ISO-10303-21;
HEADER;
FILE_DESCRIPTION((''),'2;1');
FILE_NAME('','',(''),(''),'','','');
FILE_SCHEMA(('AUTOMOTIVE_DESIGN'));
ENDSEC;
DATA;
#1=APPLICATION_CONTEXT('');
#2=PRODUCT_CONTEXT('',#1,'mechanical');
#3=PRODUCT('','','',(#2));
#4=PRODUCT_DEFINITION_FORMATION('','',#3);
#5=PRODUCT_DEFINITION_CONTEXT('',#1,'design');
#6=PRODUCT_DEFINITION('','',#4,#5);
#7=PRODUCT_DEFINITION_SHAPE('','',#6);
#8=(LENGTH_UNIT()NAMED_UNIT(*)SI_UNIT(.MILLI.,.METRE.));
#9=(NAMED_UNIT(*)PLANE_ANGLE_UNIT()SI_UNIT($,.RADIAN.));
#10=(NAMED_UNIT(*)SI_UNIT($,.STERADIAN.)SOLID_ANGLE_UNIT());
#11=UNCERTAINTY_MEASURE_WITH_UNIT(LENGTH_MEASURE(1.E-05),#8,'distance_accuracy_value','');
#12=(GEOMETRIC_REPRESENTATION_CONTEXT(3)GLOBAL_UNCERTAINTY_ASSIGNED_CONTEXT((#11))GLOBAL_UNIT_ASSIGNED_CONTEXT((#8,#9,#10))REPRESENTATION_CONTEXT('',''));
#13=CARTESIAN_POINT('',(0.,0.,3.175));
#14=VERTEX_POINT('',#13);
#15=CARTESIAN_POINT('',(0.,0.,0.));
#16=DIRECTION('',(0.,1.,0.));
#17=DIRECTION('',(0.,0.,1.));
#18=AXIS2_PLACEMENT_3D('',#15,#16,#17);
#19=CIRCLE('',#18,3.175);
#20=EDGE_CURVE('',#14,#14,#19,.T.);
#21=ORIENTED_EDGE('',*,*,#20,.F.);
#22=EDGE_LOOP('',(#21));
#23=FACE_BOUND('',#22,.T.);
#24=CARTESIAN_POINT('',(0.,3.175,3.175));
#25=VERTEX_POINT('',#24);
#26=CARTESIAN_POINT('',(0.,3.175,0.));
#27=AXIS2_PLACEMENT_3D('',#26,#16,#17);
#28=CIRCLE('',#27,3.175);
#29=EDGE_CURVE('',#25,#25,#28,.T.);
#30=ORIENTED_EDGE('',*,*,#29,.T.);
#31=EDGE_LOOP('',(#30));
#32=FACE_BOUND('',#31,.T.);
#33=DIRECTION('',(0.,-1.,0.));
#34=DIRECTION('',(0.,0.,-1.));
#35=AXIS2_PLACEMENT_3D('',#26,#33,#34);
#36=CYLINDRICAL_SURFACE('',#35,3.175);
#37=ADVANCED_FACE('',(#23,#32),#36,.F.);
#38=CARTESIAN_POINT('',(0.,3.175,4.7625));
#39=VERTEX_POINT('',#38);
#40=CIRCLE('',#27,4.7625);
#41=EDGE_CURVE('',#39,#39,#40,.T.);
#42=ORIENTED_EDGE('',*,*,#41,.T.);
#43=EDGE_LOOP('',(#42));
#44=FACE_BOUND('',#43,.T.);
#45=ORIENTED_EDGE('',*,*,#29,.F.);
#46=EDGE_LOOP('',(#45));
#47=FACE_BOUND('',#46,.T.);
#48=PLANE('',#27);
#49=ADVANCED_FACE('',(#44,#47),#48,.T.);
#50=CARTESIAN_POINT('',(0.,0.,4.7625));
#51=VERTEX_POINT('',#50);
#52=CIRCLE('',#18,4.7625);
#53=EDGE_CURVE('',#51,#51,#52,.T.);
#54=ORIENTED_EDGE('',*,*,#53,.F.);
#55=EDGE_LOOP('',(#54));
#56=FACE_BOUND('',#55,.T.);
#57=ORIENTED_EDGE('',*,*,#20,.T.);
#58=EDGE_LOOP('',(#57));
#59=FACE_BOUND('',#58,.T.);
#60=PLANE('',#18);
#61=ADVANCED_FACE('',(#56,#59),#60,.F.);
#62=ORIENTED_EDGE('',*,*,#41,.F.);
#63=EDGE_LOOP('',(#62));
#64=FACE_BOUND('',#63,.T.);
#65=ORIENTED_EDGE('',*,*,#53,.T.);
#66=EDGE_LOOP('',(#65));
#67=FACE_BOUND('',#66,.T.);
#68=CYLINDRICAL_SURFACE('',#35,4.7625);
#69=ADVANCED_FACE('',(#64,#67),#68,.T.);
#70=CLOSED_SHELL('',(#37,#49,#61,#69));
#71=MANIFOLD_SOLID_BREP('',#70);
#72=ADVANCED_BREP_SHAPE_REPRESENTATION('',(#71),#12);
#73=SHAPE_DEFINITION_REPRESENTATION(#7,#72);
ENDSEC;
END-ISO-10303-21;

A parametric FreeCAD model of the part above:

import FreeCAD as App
import Part
import Sketcher
Q = App.Units.Quantity

doc = App.newDocument("Part")
body = doc.addObject("PartDesign::Body", "Body")

sketch1 = body.newObject("Sketcher::SketchObject", "Sketch")
sketch1.AttachmentSupport = (doc.getObject("XZ_Plane"), [""])
sketch1.MapMode = "FlatFace"
sketch1.addGeometry(Part.Circle(App.Vector(0, 0, 0), App.Vector(0, 0, 1), 4.8), False)
sketch1.addGeometry(Part.Circle(App.Vector(0, 0, 0), App.Vector(0, 0, 1), 3.2), False)
sketch1.addConstraint(Sketcher.Constraint("Coincident", 0, 3, -1, 1))
sketch1.addConstraint(Sketcher.Constraint("Coincident", 1, 3, -1, 1))
sketch1.addConstraint(Sketcher.Constraint("Diameter", 1, Q("0.25 in")))
sketch1.addConstraint(Sketcher.Constraint("Diameter", 0, Q("0.375 in")))
pad1 = body.newObject("PartDesign::Pad", "Pad")
pad1.Profile = sketch1
pad1.Length = Q("0.125 in")
pad1.Reversed = True

doc.recompute()
